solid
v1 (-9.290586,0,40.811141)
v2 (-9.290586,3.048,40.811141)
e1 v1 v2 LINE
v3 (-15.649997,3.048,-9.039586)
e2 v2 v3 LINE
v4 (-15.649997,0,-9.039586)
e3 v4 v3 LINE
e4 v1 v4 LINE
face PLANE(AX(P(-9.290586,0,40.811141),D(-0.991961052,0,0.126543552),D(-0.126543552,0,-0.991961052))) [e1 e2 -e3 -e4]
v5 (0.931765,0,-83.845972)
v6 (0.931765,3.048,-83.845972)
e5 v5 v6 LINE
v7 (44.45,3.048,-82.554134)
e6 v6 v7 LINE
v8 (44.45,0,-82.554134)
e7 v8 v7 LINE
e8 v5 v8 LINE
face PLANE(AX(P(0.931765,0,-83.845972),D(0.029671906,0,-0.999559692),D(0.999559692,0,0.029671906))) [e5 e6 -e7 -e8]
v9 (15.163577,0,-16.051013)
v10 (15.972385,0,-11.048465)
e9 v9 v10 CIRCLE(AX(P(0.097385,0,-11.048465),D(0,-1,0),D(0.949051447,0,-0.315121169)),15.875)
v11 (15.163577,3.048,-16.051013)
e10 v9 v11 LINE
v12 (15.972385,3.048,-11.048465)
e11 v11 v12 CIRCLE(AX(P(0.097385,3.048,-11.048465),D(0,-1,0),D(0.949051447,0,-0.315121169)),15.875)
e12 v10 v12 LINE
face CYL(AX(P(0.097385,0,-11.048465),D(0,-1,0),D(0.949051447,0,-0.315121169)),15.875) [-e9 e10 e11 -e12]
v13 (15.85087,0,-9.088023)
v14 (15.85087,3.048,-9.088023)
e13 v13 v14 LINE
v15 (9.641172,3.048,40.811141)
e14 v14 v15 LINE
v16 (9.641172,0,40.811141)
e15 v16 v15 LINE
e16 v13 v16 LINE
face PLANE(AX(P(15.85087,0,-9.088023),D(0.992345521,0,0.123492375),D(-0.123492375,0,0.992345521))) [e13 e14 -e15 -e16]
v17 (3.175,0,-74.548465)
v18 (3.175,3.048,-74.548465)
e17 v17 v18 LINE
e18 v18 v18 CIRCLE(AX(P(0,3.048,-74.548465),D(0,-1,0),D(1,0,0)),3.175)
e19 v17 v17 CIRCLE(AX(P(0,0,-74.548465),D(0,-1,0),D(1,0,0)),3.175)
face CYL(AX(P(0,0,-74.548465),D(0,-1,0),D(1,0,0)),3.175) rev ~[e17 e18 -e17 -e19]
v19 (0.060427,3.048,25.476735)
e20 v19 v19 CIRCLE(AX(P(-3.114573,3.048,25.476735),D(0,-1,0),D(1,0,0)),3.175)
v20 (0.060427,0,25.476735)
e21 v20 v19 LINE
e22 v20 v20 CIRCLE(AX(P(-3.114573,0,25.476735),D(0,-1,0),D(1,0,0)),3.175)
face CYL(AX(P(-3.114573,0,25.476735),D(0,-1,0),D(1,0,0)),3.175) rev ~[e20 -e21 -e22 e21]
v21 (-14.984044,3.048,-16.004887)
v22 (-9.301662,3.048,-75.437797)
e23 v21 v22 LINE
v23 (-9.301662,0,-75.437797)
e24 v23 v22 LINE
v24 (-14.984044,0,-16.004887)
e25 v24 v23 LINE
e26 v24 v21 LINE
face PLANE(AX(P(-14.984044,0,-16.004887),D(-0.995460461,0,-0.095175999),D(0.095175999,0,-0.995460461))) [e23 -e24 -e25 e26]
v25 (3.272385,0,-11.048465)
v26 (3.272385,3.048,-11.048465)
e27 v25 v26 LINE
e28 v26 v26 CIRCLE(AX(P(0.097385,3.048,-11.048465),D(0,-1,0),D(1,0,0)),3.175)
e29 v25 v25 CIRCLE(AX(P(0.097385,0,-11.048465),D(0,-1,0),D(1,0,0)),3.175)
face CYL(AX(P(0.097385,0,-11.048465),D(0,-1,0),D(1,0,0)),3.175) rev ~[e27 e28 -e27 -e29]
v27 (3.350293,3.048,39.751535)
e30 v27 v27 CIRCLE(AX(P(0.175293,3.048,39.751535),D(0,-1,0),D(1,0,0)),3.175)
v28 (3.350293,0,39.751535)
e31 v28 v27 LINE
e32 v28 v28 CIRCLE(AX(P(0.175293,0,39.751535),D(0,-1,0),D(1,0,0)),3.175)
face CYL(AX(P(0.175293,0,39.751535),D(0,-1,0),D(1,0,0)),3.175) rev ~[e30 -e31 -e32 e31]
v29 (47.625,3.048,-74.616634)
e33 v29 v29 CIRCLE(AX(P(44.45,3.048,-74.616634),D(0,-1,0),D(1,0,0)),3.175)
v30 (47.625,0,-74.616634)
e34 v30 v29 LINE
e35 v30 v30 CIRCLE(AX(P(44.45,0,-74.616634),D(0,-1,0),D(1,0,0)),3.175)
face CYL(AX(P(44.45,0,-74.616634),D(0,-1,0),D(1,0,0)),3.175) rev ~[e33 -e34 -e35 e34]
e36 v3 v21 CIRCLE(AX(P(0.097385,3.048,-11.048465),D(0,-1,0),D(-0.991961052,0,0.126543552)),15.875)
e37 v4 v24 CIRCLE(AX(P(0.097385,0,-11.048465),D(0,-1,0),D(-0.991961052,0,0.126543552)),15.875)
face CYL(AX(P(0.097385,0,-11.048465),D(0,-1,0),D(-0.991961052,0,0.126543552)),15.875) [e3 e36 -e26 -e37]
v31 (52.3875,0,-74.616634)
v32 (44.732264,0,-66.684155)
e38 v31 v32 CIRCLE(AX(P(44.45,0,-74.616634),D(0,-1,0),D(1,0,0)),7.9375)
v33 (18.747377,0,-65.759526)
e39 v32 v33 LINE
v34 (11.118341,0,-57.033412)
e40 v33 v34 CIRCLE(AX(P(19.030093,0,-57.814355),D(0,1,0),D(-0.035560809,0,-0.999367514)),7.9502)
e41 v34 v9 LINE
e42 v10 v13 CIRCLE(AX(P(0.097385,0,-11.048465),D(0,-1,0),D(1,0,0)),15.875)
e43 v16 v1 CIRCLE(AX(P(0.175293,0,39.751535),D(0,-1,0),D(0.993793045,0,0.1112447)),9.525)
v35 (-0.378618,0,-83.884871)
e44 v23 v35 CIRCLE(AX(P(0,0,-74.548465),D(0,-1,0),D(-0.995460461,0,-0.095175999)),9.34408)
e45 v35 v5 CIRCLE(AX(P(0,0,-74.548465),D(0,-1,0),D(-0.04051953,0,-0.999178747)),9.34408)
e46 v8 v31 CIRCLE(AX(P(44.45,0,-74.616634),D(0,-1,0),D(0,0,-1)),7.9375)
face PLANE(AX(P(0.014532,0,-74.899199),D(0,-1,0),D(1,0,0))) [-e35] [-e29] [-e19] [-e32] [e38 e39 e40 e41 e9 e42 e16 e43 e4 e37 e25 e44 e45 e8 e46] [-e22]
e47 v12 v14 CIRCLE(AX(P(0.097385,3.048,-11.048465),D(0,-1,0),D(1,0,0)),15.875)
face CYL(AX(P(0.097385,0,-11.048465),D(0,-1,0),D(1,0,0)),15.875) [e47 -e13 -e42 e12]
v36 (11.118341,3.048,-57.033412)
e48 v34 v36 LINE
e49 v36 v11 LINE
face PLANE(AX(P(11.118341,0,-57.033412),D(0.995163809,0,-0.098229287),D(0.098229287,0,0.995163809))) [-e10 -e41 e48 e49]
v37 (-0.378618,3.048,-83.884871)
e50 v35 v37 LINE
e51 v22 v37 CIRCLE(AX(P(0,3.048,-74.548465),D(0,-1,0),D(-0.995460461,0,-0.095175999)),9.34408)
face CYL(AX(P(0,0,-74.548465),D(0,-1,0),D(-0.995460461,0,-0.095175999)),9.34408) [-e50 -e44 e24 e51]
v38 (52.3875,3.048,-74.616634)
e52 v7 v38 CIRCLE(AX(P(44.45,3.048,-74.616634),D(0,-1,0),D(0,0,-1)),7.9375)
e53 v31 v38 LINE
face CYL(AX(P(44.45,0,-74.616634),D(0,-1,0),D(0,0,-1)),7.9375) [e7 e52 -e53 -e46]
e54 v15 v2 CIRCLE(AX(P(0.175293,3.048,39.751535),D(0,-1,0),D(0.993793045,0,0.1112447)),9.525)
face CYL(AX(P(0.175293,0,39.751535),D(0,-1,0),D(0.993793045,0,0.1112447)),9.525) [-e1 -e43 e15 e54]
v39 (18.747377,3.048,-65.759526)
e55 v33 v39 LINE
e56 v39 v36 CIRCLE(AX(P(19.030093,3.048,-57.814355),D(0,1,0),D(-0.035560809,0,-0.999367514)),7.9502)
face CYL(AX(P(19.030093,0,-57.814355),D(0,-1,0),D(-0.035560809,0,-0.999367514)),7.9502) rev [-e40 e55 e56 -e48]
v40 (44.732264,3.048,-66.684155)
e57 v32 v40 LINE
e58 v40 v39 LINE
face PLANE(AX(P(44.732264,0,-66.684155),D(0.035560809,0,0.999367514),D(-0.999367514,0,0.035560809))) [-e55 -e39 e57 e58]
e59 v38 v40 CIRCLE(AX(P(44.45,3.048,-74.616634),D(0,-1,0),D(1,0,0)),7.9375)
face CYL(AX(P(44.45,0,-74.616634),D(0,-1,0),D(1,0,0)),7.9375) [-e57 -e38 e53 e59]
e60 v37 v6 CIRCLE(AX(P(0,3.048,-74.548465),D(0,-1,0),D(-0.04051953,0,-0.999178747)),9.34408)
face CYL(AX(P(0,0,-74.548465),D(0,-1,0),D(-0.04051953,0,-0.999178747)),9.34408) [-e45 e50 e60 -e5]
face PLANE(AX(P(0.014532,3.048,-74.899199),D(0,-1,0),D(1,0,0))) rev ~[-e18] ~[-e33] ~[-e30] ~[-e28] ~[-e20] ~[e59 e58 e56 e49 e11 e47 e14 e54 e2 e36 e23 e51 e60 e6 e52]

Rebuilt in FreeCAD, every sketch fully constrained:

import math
import FreeCAD as App
import Part
import Sketcher

V = App.Vector
Q = App.Units.Quantity

doc = App.newDocument("Part")
params = doc.addObject("Spreadsheet::Sheet", "Params")
for row, (alias, value) in enumerate([
    ("sketch1_diameter", "0.25 in"),
    ("sketch1_radius", "0.3125 in"),
    ("sketch1_radius2", "0.313 in"),
    ("sketch1_radius3", "0.625 in"),
    ("sketch1_radius4", "0.375 in"),
    ("pad1_length", "0.12 in"),
], start=1):
    params.set(f"A{row}", alias)
    params.set(f"B{row}", "=" + value)
    params.setAlias(f"B{row}", alias)

body = doc.addObject("PartDesign::Body", "Body")

# Sketch on XZ plane
sketch1 = body.newObject("Sketcher::SketchObject", "Sketch")
sketch1.AttachmentSupport = (doc.getObject("XZ_Plane"), [""])
sketch1.MapMode = "FlatFace"
sketch1.addGeometry(Part.LineSegment(V(0.931765, -83.845972, 0), V(44.45, -82.554134, 0)), False)
sketch1.addGeometry(Part.ArcOfCircle(Part.Circle(V(44.45, -74.616634, 0), V(0, 0, 1), 7.9375), math.radians(-90), math.radians(0)), False)
sketch1.addGeometry(Part.ArcOfCircle(Part.Circle(V(44.45, -74.616634, 0), V(0, 0, 1), 7.9375), math.radians(0), math.radians(87.962086)), False)
sketch1.addGeometry(Part.LineSegment(V(44.732264, -66.684155, 0), V(18.747377, -65.759526, 0)), False)
sketch1.addGeometry(Part.ArcOfCircle(Part.Circle(V(19.030093, -57.814355, 0), V(0, 0, 1), 7.9502), math.radians(174.362786), math.radians(267.962086)), False)
sketch1.addGeometry(Part.LineSegment(V(11.118341, -57.033412, 0), V(15.163577, -16.051013, 0)), False)
sketch1.addGeometry(Part.ArcOfCircle(Part.Circle(V(0.097385, -11.048465, 0), V(0, 0, 1), 15.875), math.radians(-18.368129), math.radians(0)), False)
sketch1.addGeometry(Part.ArcOfCircle(Part.Circle(V(0.097385, -11.048465, 0), V(0, 0, 1), 15.875), math.radians(0), math.radians(7.093701)), False)
sketch1.addGeometry(Part.LineSegment(V(15.85087, -9.088023, 0), V(9.641172, 40.811141, 0)), False)
sketch1.addGeometry(Part.ArcOfCircle(Part.Circle(V(0.175293, 39.751535, 0), V(0, 0, 1), 9.525), math.radians(6.387072), math.radians(173.612928)), False)
sketch1.addGeometry(Part.LineSegment(V(-9.290586, 40.811141, 0), V(-15.649997, -9.039586, 0)), False)
sketch1.addGeometry(Part.ArcOfCircle(Part.Circle(V(0.097385, -11.048465, 0), V(0, 0, 1), 15.875), math.radians(172.730097), math.radians(198.192802)), False)
sketch1.addGeometry(Part.LineSegment(V(-14.984044, -16.004887, 0), V(-9.301662, -75.437797, 0)), False)
sketch1.addGeometry(Part.ArcOfCircle(Part.Circle(V(0, -74.548465, 0), V(0, 0, 1), 9.34408), math.radians(-174.53855), math.radians(-92.322234)), False)
sketch1.addGeometry(Part.ArcOfCircle(Part.Circle(V(0, -74.548465, 0), V(0, 0, 1), 9.34408), math.radians(-92.322234), math.radians(-84.277117)), False)
sketch1.addGeometry(Part.Circle(V(0, -74.548465, 0), V(0, 0, 1), 3.175), False)
sketch1.addGeometry(Part.Circle(V(44.45, -74.616634, 0), V(0, 0, 1), 3.175), False)
sketch1.addGeometry(Part.Circle(V(0.097385, -11.048465, 0), V(0, 0, 1), 3.175), False)
sketch1.addGeometry(Part.Circle(V(-3.114573, 25.476735, 0), V(0, 0, 1), 3.175), False)
sketch1.addGeometry(Part.Circle(V(0.175293, 39.751535, 0), V(0, 0, 1), 3.175), False)
sketch1.addConstraint(Sketcher.Constraint("Coincident", 0, 2, 1, 1))
sketch1.addConstraint(Sketcher.Constraint("Tangent", 1, 2, 2, 1))
sketch1.addConstraint(Sketcher.Constraint("Tangent", 2, 2, 3, 1))
sketch1.addConstraint(Sketcher.Constraint("Tangent", 3, 2, 4, 2))
sketch1.addConstraint(Sketcher.Constraint("Tangent", 4, 1, 5, 1))
sketch1.addConstraint(Sketcher.Constraint("Coincident", 5, 2, 6, 1))
sketch1.addConstraint(Sketcher.Constraint("Tangent", 6, 2, 7, 1))
sketch1.addConstraint(Sketcher.Constraint("Tangent", 7, 2, 8, 1))
sketch1.addConstraint(Sketcher.Constraint("Coincident", 8, 2, 9, 1))
sketch1.addConstraint(Sketcher.Constraint("Coincident", 9, 2, 10, 1))
sketch1.addConstraint(Sketcher.Constraint("Tangent", 10, 2, 11, 1))
sketch1.addConstraint(Sketcher.Constraint("Coincident", 11, 2, 12, 1))
sketch1.addConstraint(Sketcher.Constraint("Tangent", 12, 2, 13, 1))
sketch1.addConstraint(Sketcher.Constraint("Tangent", 13, 2, 14, 1))
sketch1.addConstraint(Sketcher.Constraint("Coincident", 14, 2, 0, 1))
sketch1.addConstraint(Sketcher.Constraint("Coincident", 11, 3, 6, 3))
sketch1.addConstraint(Sketcher.Constraint("Coincident", 15, 3, 13, 3))
sketch1.addConstraint(Sketcher.Constraint("Coincident", 16, 3, 1, 3))
sketch1.addConstraint(Sketcher.Constraint("Coincident", 17, 3, 6, 3))
sketch1.addConstraint(Sketcher.Constraint("Coincident", 19, 3, 9, 3))
sketch1.addConstraint(Sketcher.Constraint("Equal", 1, 2))
sketch1.addConstraint(Sketcher.Constraint("Equal", 6, 7))
sketch1.addConstraint(Sketcher.Constraint("Equal", 7, 11))
sketch1.addConstraint(Sketcher.Constraint("Equal", 13, 14))
sketch1.addConstraint(Sketcher.Constraint("Equal", 15, 16))
sketch1.addConstraint(Sketcher.Constraint("Equal", 16, 17))
sketch1.addConstraint(Sketcher.Constraint("Equal", 17, 18))
sketch1.addConstraint(Sketcher.Constraint("Equal", 18, 19))
sketch1.addConstraint(Sketcher.Constraint("PointOnObject", 13, 3, -2))
sketch1.addConstraint(Sketcher.Constraint("Horizontal", 16, 3, 1, 2))
sketch1.addConstraint(Sketcher.Constraint("Horizontal", 17, 3, 6, 2))
sketch1.addConstraint(Sketcher.Constraint("Horizontal", 8, 2, 9, 2))
sketch1.addConstraint(Sketcher.Constraint("Vertical", 16, 3, 0, 2))
sketch1.addConstraint(Sketcher.Constraint("Diameter", 15, Q("0.25 in")))
sketch1.addConstraint(Sketcher.Constraint("Radius", 1, Q("0.3125 in")))
sketch1.addConstraint(Sketcher.Constraint("Radius", 4, Q("0.313 in")))
sketch1.addConstraint(Sketcher.Constraint("Radius", 6, Q("0.625 in")))
sketch1.addConstraint(Sketcher.Constraint("Radius", 9, Q("0.375 in")))
sketch1.addConstraint(Sketcher.Constraint("DistanceY", 6, 3, 9, 3, Q("2 in")))
sketch1.addConstraint(Sketcher.Constraint("DistanceY", 13, 3, 7, 3, Q("2.5 in")))
sketch1.addConstraint(Sketcher.Constraint("DistanceX", -1, 1, 1, 3, Q("1.75 in")))
sketch1.addConstraint(Sketcher.Constraint("Radius", 13, 9.34408))
sketch1.addConstraint(Sketcher.Constraint("DistanceY", 18, 3, 9, 3, Q("0.562 in")))
sketch1.addConstraint(Sketcher.Constraint("DistanceX", 9, 3, 4, 3, 18.8548))
sketch1.addConstraint(Sketcher.Constraint("DistanceY", 4, 1, 5, 2, 40.982399))
sketch1.addConstraint(Sketcher.Constraint("DistanceX", 8, 2, 7, 2, 6.209698))
sketch1.addConstraint(Sketcher.Constraint("DistanceY", 11, 2, 10, 2, 6.965301))
sketch1.addConstraint(Sketcher.Constraint("DistanceY", 13, 2, 14, 2, 0.038899))
sketch1.addConstraint(Sketcher.Constraint("Distance", 5, 41.181561))
sketch1.addConstraint(Sketcher.Constraint("Distance", 10, 50.254722))
sketch1.addConstraint(Sketcher.Constraint("Distance", 12, 59.703938))
sketch1.addConstraint(Sketcher.Constraint("DistanceY", -1, 1, 8, 2, 40.811141))
sketch1.addConstraint(Sketcher.Constraint("DistanceY", 13, 2, -1, 1, 83.884871))
sketch1.addConstraint(Sketcher.Constraint("DistanceY", 1, 3, 4, 3, 16.80228))
sketch1.addConstraint(Sketcher.Constraint("DistanceX", 18, 3, 17, 3, 3.211958))
sketch1.setExpression("Constraints[33]", "Params.sketch1_diameter")
sketch1.setExpression("Constraints[34]", "Params.sketch1_radius")
sketch1.setExpression("Constraints[35]", "Params.sketch1_radius2")
sketch1.setExpression("Constraints[36]", "Params.sketch1_radius3")
sketch1.setExpression("Constraints[37]", "Params.sketch1_radius4")
pad1 = body.newObject("PartDesign::Pad", "Pad")
pad1.Profile = sketch1
pad1.setExpression("Length", "Params.pad1_length")
pad1.Reversed = True

doc.recompute()
